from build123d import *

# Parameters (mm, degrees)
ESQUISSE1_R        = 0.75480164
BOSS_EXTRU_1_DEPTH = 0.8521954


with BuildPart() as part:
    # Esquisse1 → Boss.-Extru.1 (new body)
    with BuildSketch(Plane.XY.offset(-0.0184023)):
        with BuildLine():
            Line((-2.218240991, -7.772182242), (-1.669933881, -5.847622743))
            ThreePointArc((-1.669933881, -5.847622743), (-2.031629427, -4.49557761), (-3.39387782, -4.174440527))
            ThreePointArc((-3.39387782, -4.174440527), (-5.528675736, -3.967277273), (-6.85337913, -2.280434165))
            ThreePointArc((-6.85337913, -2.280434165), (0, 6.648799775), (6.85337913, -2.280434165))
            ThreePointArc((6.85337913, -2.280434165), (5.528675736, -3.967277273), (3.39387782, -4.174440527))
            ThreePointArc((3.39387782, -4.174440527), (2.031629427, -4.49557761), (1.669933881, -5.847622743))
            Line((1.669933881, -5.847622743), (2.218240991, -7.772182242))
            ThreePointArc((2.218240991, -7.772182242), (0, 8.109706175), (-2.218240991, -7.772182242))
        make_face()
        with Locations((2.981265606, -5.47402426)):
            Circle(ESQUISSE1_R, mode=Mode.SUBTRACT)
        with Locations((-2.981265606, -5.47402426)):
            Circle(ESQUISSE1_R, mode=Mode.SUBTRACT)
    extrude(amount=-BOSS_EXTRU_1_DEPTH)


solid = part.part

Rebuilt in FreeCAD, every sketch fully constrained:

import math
import FreeCAD as App
import Part
import Sketcher

V = App.Vector

doc = App.newDocument("Part")
params = doc.addObject("Spreadsheet::Sheet", "Params")
for row, (alias, value) in enumerate([
    ("pad1_length", "0.852195 mm"),
], start=1):
    params.set(f"A{row}", alias)
    params.set(f"B{row}", "=" + value)
    params.setAlias(f"B{row}", alias)

body = doc.addObject("PartDesign::Body", "Body")

# Sketch on XY plane
sketch1 = body.newObject("Sketcher::SketchObject", "Sketch")
sketch1.AttachmentSupport = (doc.getObject("XY_Plane"), [""])
sketch1.MapMode = "FlatFace"
sketch1.AttachmentOffset = App.Placement(V(0, 0, -0.018402), App.Rotation())
sketch1.addGeometry([
    Part.LineSegment(V(-2.218241, -7.772182, 0), V(-1.669934, -5.847623, 0)),  # 0
    Part.ArcOfCircle(Part.Circle(V(-2.981266, -5.474024, 0), V(0, 0, 1), 1.363513), math.radians(-15.902256), math.radians(107.614418)),  # 1
    Part.ArcOfCircle(Part.Circle(V(-4.219102, -1.575273, 0), V(0, 0, 1), 2.727025), math.radians(-165.014029), math.radians(-72.385582)),  # 2
    Part.ArcOfCircle(Part.Circle(V(0, -0.445875, 0), V(0, 0, 1), 7.094675), math.radians(-14.985971), math.radians(194.985971)),  # 3
    Part.ArcOfCircle(Part.Circle(V(4.219102, -1.575273, 0), V(0, 0, 1), 2.727025), math.radians(-107.614418), math.radians(-14.985971)),  # 4
    Part.ArcOfCircle(Part.Circle(V(2.981266, -5.474024, 0), V(0, 0, 1), 1.363513), math.radians(72.385582), math.radians(195.902256)),  # 5
    Part.LineSegment(V(1.669934, -5.847623, 0), V(2.218241, -7.772182, 0)),  # 6
    Part.ArcOfCircle(Part.Circle(V(0, 0.01385, 0), V(0, 0, 1), 8.095856), math.radians(-74.097744), math.radians(254.097744)),  # 7
    Part.Circle(V(-2.981266, -5.474024, 0), V(0, 0, 1), 0.754802),  # 8
    Part.Circle(V(2.981266, -5.474024, 0), V(0, 0, 1), 0.754802),  # 9
], False)
sketch1.addConstraint([
    Sketcher.Constraint("Tangent", 0, 2, 1, 1),
    Sketcher.Constraint("Tangent", 1, 2, 2, 2),
    Sketcher.Constraint("Tangent", 2, 1, 3, 2),
    Sketcher.Constraint("Tangent", 3, 1, 4, 2),
    Sketcher.Constraint("Tangent", 4, 1, 5, 1),
    Sketcher.Constraint("Tangent", 5, 2, 6, 1),
    Sketcher.Constraint("Coincident", 6, 2, 7, 1),
    Sketcher.Constraint("Coincident", 7, 2, 0, 1),
    Sketcher.Constraint("Coincident", 8, 3, 1, 3),
    Sketcher.Constraint("Coincident", 9, 3, 5, 3),
    Sketcher.Constraint("Equal", 2, 4),
    Sketcher.Constraint("Equal", 1, 5),
    Sketcher.Constraint("Equal", 8, 9),
    Sketcher.Constraint("Symmetric", 2, 3, 4, 3, -2),
    Sketcher.Constraint("Symmetric", 0, 2, 5, 2, -2),
    Sketcher.Constraint("PointOnObject", 7, 3, -2),
    Sketcher.Constraint("Diameter", 8, 1.509603),
    Sketcher.Constraint("Radius", 1, 1.363513),
    Sketcher.Constraint("Radius", 2, 2.727025),
    Sketcher.Constraint("Radius", 3, 7.094675),
    Sketcher.Constraint("Radius", 7, 8.095856),
    Sketcher.Constraint("DistanceY", 0, 2, 1, 3, 0.373598),
    Sketcher.Constraint("DistanceX", 0, 2, 5, 3, 4.651199),
    Sketcher.Constraint("DistanceX", 2, 1, 1, 2, 3.459501),
    Sketcher.Constraint("DistanceY", -1, 1, 7, 3, 0.01385),
    Sketcher.Constraint("DistanceY", 1, 2, -1, 1, 4.174441),
])
pad1 = body.newObject("PartDesign::Pad", "Pad")
pad1.Profile = sketch1
pad1.setExpression("Length", "Params.pad1_length")
pad1.Reversed = True

doc.recompute()
